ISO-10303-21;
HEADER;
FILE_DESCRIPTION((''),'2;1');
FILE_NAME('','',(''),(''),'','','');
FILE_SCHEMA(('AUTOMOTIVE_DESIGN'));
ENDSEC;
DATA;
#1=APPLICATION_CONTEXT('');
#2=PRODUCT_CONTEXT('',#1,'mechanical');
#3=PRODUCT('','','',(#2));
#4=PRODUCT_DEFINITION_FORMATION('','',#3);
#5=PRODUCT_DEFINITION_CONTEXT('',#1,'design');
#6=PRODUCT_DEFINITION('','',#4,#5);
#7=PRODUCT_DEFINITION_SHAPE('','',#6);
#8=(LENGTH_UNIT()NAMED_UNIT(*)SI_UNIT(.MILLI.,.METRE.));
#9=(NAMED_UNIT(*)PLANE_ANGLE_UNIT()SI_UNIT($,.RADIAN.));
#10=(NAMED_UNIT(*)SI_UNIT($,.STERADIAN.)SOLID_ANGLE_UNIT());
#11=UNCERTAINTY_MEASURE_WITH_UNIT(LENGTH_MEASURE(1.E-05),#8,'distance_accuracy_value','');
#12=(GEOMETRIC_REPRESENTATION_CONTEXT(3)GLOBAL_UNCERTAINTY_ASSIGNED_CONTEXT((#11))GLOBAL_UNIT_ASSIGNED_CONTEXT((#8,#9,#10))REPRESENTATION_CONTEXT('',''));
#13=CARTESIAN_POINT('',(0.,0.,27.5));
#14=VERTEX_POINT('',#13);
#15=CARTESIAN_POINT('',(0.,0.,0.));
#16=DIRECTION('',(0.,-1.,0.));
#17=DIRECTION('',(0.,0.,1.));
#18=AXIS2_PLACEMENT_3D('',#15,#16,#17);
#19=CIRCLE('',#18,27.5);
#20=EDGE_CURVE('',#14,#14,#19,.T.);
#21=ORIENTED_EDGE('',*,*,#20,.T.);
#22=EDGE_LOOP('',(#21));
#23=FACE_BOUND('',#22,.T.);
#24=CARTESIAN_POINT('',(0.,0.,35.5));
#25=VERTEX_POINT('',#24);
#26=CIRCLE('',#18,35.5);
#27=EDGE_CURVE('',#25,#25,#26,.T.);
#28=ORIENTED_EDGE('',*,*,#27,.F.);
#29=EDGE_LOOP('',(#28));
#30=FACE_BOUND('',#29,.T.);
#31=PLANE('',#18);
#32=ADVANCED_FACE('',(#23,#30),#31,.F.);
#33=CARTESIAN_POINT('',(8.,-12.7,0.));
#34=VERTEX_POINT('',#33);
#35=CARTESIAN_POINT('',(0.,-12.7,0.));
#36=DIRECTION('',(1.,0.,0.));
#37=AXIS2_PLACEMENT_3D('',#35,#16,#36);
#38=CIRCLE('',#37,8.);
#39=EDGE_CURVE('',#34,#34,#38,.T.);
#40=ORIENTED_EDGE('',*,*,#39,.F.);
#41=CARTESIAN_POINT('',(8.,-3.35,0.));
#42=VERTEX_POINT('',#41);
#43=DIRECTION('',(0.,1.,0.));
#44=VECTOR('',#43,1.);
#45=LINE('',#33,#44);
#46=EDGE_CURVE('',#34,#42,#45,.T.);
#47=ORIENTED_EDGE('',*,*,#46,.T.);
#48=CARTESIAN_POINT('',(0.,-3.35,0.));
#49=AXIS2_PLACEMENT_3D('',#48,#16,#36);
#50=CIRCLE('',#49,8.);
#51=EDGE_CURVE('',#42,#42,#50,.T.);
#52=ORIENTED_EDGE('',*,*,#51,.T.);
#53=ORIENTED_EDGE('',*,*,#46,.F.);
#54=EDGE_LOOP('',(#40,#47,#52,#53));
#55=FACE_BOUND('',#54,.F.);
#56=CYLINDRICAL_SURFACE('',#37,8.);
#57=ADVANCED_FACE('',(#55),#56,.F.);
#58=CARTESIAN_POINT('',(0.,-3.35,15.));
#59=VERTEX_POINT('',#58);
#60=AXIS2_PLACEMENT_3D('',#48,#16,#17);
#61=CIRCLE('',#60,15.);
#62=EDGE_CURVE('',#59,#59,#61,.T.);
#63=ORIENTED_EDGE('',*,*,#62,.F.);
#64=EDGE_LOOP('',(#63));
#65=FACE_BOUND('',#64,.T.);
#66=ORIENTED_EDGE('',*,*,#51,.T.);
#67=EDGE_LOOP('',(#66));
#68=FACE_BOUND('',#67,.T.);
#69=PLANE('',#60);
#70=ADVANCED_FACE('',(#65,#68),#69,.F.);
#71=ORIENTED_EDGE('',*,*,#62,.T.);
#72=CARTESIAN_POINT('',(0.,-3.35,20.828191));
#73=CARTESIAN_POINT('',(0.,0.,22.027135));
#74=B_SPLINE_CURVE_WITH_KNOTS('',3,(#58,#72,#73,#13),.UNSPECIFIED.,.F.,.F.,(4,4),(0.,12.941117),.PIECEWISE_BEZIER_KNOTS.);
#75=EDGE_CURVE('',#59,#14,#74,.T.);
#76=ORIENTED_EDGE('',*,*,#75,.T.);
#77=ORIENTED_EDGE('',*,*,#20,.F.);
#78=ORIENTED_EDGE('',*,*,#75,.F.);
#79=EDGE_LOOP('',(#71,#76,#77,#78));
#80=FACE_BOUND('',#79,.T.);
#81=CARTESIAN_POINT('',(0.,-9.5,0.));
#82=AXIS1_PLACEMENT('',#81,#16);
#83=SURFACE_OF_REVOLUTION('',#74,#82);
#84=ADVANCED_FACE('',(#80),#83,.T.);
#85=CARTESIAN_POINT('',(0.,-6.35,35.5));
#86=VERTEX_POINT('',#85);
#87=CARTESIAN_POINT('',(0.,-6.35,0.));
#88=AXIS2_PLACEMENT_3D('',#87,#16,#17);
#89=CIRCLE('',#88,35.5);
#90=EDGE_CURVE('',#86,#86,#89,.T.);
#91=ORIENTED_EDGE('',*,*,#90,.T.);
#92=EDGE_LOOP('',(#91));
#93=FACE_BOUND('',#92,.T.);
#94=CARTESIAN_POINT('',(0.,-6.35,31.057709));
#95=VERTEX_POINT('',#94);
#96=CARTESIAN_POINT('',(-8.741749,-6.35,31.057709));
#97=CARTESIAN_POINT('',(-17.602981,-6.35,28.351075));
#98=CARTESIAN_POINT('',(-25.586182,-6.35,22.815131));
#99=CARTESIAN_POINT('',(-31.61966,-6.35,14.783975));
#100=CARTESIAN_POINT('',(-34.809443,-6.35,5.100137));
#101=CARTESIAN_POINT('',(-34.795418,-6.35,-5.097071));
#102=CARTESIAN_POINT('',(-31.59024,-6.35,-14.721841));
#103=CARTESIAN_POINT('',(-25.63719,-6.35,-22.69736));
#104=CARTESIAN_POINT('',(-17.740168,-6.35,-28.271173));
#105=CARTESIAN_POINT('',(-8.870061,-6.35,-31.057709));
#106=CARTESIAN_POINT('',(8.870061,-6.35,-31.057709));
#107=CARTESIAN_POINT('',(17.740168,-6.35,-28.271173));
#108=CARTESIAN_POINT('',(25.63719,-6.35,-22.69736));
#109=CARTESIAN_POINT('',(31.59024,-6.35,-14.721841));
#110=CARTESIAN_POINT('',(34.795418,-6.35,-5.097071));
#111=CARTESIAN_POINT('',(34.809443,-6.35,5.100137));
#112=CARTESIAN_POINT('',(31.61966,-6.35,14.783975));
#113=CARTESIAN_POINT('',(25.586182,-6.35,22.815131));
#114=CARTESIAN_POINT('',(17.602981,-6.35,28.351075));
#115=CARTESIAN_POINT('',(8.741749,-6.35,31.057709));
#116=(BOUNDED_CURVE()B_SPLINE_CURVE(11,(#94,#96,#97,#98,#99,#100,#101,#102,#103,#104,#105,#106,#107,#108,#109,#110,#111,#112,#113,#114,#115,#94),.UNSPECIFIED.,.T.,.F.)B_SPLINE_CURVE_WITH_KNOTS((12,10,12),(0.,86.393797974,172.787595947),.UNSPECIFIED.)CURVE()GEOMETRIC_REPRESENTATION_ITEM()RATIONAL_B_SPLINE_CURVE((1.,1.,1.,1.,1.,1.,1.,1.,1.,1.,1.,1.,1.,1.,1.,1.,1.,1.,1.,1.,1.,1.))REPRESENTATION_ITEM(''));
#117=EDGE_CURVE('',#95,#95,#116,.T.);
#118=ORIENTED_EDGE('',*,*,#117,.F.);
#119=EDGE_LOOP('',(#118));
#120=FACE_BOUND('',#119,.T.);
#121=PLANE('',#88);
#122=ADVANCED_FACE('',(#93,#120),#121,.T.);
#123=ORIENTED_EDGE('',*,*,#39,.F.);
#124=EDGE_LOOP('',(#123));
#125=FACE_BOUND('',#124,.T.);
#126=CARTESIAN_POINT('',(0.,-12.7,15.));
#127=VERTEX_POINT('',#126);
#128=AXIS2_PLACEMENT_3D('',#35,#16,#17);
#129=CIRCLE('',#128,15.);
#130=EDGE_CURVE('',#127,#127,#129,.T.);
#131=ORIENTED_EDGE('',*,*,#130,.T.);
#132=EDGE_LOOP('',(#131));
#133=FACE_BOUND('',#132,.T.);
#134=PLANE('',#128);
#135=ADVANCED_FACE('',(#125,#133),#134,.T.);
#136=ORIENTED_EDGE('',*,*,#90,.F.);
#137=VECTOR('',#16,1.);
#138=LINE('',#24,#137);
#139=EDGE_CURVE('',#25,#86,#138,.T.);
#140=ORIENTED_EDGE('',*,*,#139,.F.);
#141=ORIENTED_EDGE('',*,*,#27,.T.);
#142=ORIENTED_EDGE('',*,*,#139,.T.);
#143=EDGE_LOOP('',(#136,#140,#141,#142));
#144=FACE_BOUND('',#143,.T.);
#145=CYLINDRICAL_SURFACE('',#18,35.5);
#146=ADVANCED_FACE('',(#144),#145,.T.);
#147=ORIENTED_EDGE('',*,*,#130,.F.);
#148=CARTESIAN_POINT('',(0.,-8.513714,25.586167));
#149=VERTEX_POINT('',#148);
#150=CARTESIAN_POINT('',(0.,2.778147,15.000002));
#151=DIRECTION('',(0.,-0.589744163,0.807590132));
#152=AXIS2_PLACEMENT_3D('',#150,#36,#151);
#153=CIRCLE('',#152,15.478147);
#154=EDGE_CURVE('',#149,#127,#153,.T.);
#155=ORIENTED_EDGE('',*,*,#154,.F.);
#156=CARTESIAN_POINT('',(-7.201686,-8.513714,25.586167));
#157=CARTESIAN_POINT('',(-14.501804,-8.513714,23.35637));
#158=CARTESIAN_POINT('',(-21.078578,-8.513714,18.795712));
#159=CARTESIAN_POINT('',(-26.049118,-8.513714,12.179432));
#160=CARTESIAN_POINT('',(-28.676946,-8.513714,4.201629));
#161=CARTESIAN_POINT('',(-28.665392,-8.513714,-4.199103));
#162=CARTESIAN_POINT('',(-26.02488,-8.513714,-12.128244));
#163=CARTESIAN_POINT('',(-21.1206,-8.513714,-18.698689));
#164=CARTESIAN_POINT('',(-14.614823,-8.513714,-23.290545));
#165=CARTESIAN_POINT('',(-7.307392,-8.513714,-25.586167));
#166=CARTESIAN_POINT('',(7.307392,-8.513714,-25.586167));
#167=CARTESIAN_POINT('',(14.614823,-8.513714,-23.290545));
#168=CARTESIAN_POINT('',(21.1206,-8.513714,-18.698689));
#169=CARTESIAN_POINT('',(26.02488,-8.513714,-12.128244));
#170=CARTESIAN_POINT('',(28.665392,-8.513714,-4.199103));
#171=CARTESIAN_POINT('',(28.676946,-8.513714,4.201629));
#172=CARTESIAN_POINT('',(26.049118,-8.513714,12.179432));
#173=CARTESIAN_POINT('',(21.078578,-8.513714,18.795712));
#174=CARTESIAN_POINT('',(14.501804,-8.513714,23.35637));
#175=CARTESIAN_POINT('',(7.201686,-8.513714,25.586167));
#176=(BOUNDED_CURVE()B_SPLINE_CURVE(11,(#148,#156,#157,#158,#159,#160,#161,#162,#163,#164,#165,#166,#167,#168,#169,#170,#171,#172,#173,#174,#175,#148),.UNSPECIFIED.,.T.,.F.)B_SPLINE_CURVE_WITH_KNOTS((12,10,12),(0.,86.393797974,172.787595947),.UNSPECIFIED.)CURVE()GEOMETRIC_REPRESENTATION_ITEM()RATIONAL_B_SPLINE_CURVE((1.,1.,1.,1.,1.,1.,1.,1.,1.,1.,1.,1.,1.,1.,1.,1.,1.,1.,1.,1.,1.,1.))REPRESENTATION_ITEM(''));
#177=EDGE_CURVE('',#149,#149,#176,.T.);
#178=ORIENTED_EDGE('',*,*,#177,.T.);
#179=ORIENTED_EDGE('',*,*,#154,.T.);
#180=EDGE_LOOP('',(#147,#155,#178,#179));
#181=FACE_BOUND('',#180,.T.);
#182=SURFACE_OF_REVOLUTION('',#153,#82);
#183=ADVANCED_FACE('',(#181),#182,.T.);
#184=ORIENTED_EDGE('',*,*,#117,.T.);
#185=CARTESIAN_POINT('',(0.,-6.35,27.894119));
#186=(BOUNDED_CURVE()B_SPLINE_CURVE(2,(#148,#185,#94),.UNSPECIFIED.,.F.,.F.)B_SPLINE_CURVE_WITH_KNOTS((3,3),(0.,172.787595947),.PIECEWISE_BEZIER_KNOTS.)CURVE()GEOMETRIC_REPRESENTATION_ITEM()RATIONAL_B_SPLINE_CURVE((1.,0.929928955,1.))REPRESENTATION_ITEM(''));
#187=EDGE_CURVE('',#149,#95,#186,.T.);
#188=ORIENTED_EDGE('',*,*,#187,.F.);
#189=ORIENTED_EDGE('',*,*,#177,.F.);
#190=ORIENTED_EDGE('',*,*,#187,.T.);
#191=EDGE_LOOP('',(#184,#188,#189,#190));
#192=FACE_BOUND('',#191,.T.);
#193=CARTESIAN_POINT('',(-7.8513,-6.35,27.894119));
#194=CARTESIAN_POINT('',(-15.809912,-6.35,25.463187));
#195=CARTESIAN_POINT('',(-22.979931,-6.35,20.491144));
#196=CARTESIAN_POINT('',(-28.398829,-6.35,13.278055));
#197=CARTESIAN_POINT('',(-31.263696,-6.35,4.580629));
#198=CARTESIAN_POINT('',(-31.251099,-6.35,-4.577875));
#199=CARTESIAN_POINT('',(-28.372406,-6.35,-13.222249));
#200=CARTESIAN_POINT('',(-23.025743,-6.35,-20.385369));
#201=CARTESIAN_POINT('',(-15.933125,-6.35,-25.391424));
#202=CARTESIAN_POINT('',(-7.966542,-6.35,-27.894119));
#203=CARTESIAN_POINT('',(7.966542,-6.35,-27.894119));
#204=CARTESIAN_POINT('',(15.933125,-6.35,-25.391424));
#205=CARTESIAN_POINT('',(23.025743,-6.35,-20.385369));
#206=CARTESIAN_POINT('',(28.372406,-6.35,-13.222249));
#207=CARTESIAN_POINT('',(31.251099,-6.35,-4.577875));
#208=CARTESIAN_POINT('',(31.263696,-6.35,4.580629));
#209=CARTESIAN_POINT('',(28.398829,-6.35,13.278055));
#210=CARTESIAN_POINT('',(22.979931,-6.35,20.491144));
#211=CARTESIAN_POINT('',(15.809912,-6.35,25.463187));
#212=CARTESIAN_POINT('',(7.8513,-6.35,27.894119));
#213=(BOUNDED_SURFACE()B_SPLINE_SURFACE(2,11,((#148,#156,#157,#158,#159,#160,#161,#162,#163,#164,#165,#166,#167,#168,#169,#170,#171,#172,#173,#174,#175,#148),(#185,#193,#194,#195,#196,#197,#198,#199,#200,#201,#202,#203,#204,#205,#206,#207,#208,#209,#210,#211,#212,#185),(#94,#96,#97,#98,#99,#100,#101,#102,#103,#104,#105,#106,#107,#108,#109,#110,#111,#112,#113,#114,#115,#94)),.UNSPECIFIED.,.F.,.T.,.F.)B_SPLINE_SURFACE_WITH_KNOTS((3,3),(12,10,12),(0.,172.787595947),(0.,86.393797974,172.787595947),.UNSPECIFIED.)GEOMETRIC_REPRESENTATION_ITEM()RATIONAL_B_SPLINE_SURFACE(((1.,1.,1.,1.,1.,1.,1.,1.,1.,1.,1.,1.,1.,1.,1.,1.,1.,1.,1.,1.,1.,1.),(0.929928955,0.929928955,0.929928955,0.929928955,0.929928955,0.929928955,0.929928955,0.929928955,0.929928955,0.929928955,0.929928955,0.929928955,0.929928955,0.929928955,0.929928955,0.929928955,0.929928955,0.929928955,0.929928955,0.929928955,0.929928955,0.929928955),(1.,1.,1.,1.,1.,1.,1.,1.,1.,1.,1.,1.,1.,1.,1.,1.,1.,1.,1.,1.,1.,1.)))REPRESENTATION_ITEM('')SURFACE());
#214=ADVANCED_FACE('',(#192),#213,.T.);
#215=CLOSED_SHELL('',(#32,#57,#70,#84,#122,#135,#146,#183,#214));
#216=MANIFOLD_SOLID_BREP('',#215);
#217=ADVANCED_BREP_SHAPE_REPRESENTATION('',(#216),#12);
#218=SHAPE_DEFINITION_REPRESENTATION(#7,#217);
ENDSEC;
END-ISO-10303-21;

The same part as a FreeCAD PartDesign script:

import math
import FreeCAD as App
import Part
import Sketcher

V = App.Vector
Q = App.Units.Quantity


def edges_at(feature, points):
    """Names of the edges that pass closest to the given points."""
    edges = feature.Shape.Edges
    near = lambda p: min(range(len(edges)), key=lambda i: edges[i].distToShape(Part.Vertex(*p))[0])
    return sorted({f"Edge{near(p) + 1}" for p in points})

doc = App.newDocument("Part")
body = doc.addObject("PartDesign::Body", "Body")

sketch1 = body.newObject("Sketcher::SketchObject", "Sketch")
sketch1.AttachmentSupport = (doc.getObject("YZ_Plane"), [""])
sketch1.MapMode = "FlatFace"
sketch1.addGeometry(Part.LineSegment(V(-12.7, 15, 0), V(-12.7, 0, 0)), False)
sketch1.addGeometry(Part.LineSegment(V(-12.7, 0, 0), V(-3.35, 0, 0)), False)
sketch1.addGeometry(Part.LineSegment(V(-3.35, 0, 0), V(-3.35, 15, 0)), False)
sketch1.addGeometry(Part.BSplineCurve([V(-3.35, 15, 0), V(-3.35, 20.828191, 0), V(0, 22.027135, 0), V(0, 27.5, 0)], [4, 4], [0, 12.941117], False, 3, [1, 1, 1, 1], False), False)
sketch1.addGeometry(Part.LineSegment(V(0, 27.5, 0), V(0, 35.5, 0)), False)
sketch1.addGeometry(Part.LineSegment(V(0, 35.5, 0), V(-6.35, 35.5, 0)), False)
sketch1.addGeometry(Part.LineSegment(V(-6.35, 35.5, 0), V(-6.35, 27.5, 0)), False)
sketch1.addGeometry(Part.ArcOfCircle(Part.Circle(V(2.778147, 15.000002, 0), V(0, 0, 1), 15.478147), math.radians(126.138855), math.radians(180.000006)), False)
sketch1.addConstraint(Sketcher.Constraint("Block", 3))
sketch1.addConstraint(Sketcher.Constraint("Coincident", 0, 2, 1, 1))
sketch1.addConstraint(Sketcher.Constraint("Coincident", 1, 2, 2, 1))
sketch1.addConstraint(Sketcher.Constraint("Coincident", 2, 2, 3, 1))
sketch1.addConstraint(Sketcher.Constraint("Coincident", 3, 2, 4, 1))
sketch1.addConstraint(Sketcher.Constraint("Coincident", 4, 2, 5, 1))
sketch1.addConstraint(Sketcher.Constraint("Coincident", 5, 2, 6, 1))
sketch1.addConstraint(Sketcher.Constraint("Coincident", 6, 2, 7, 1))
sketch1.addConstraint(Sketcher.Constraint("Tangent", 7, 2, 0, 1))
sketch1.addConstraint(Sketcher.Constraint("Vertical", 0))
sketch1.addConstraint(Sketcher.Constraint("Horizontal", 1))
sketch1.addConstraint(Sketcher.Constraint("Vertical", 2))
sketch1.addConstraint(Sketcher.Constraint("Vertical", 4))
sketch1.addConstraint(Sketcher.Constraint("Horizontal", 5))
sketch1.addConstraint(Sketcher.Constraint("Vertical", 6))
sketch1.addConstraint(Sketcher.Constraint("PointOnObject", 0, 2, -1))
sketch1.addConstraint(Sketcher.Constraint("Horizontal", 7, 3, 2, 2))
sketch1.addConstraint(Sketcher.Constraint("Equal", 4, 6))
sketch1.addConstraint(Sketcher.Constraint("DistanceY", 4, 1, 4, 2, Q("8 mm")))
sketch1.addConstraint(Sketcher.Constraint("DistanceX", 5, 2, 2, 2, Q("3 mm")))
sketch1.addConstraint(Sketcher.Constraint("DistanceX", 1, 1, 1, 2, Q("9.35 mm")))
revolution = body.newObject("PartDesign::Revolution", "Revolution")
revolution.Profile = sketch1
revolution.ReferenceAxis = (sketch1, ["H_Axis"])
revolution.Angle = 360

sketch2 = body.newObject("Sketcher::SketchObject", "Sketch001")
sketch2.AttachmentSupport = (doc.getObject("XZ_Plane"), [""])
sketch2.MapMode = "FlatFace"
sketch2.AttachmentOffset = App.Placement(V(0, 0, 12.7), App.Rotation())
sketch2.addGeometry(Part.Circle(V(0, 0, 0), V(0, 0, 1), 8), False)
sketch2.addConstraint(Sketcher.Constraint("Coincident", 0, 3, -1, 1))
sketch2.addConstraint(Sketcher.Constraint("Diameter", 0, Q("16 mm")))
pocket1 = body.newObject("PartDesign::Pocket", "Pocket")
pocket1.Profile = sketch2
pocket1.Type = "ThroughAll"
doc.recompute()

fillet = body.newObject("PartDesign::Fillet", "Fillet")
fillet.Base = (pocket1, edges_at(pocket1, [(0, -6.35, -27.5)]))
fillet.Radius = 8

doc.recompute()
